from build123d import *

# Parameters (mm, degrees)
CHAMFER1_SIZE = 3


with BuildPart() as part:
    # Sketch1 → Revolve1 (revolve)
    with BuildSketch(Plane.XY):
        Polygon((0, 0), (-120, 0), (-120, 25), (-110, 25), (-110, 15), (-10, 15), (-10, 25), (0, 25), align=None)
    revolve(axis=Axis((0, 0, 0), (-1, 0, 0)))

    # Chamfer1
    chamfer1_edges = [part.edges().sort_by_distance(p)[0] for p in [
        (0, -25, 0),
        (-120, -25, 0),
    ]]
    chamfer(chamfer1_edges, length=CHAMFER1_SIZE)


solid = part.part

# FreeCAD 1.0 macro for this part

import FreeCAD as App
import Part
import Sketcher

V = App.Vector


def edges_at(feature, points):
    """Names of the edges that pass closest to the given points."""
    edges = feature.Shape.Edges
    near = lambda p: min(range(len(edges)), key=lambda i: edges[i].distToShape(Part.Vertex(*p))[0])
    return sorted({f"Edge{near(p) + 1}" for p in points})


def add_polygon(sketch, points):
    """Adds a closed chain of lines whose ends are joined by coincident constraints."""
    first, n = sketch.GeometryCount, len(points)
    for a, b in zip(points, points[1:] + points[:1]):
        sketch.addGeometry(Part.LineSegment(App.Vector(*a, 0), App.Vector(*b, 0)), False)
    for i in range(n):
        sketch.addConstraint(Sketcher.Constraint("Coincident", first + i, 2, first + (i + 1) % n, 1))

doc = App.newDocument("Part")
body = doc.addObject("PartDesign::Body", "Body")

sketch1 = body.newObject("Sketcher::SketchObject", "Sketch")
sketch1.AttachmentSupport = (doc.getObject("XY_Plane"), [""])
sketch1.MapMode = "FlatFace"
add_polygon(sketch1, [(-120, 0), (0, 0), (0, 25), (-10, 25), (-10, 15), (-110, 15), (-110, 25), (-120, 25)])
sketch1.addConstraint([
    Sketcher.Constraint("Horizontal", 0),
    Sketcher.Constraint("Vertical", 1),
    Sketcher.Constraint("Horizontal", 2),
    Sketcher.Constraint("Vertical", 3),
    Sketcher.Constraint("Horizontal", 4),
    Sketcher.Constraint("Vertical", 5),
    Sketcher.Constraint("Horizontal", 6),
    Sketcher.Constraint("Vertical", 7),
    Sketcher.Constraint("Coincident", 0, 2, -1, 1),
    Sketcher.Constraint("Horizontal", 2, 2, 5, 2),
    Sketcher.Constraint("Equal", 2, 6),
    Sketcher.Constraint("Equal", 6, 3),
    Sketcher.Constraint("DistanceX", 0, 1, 0, 2, 120.0),
    Sketcher.Constraint("DistanceX", 2, 2, 2, 1, 10.0),
    Sketcher.Constraint("DistanceY", 1, 1, 1, 2, 25.0),
])
revolution = body.newObject("PartDesign::Revolution", "Revolution")
revolution.Profile = sketch1
revolution.ReferenceAxis = (sketch1, ["H_Axis"])
revolution.Angle = 360
doc.recompute()

chamfer = body.newObject("PartDesign::Chamfer", "Chamfer")
chamfer.Base = (revolution, edges_at(revolution, [(0, -25, 0), (-120, -25, 0)]))
chamfer.Size = 3

doc.recompute()
